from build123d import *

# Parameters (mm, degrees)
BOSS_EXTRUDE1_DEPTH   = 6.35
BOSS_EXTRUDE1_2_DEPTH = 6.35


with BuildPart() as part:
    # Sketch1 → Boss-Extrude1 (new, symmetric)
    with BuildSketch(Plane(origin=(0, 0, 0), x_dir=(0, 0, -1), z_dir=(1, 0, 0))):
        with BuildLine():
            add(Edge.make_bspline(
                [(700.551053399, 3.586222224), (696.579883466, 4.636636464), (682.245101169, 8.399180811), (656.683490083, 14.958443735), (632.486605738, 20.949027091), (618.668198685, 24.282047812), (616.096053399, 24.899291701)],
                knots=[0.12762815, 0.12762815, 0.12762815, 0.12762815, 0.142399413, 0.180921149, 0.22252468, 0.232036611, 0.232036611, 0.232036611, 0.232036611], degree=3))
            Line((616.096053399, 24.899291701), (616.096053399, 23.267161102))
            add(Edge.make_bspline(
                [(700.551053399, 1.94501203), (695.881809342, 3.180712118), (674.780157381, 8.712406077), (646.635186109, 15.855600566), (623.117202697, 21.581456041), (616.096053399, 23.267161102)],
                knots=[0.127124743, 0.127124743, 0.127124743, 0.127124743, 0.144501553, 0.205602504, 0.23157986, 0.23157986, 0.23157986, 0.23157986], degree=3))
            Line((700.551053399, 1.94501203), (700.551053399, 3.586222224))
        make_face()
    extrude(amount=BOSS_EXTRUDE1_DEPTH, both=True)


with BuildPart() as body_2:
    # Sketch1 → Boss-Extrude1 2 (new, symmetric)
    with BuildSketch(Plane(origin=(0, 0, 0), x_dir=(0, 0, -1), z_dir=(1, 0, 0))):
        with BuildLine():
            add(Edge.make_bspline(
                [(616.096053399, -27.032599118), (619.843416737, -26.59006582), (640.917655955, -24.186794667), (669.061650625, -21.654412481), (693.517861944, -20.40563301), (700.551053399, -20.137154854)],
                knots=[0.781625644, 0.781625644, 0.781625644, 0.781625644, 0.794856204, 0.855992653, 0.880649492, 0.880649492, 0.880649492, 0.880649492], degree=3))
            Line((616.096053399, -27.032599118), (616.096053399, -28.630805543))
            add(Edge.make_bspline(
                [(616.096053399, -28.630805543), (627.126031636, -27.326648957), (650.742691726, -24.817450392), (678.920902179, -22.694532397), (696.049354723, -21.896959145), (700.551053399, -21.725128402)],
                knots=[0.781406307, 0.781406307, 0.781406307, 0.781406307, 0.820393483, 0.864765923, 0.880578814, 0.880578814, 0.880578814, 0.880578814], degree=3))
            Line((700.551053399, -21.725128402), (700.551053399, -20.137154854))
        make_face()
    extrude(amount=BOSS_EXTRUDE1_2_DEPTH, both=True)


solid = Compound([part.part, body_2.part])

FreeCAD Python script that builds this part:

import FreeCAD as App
import Part
import Sketcher
Q = App.Units.Quantity

doc = App.newDocument("Part")
body = doc.addObject("PartDesign::Body", "Body")

# Sketch on YZ plane
sketch1 = body.newObject("Sketcher::SketchObject", "Sketch")
sketch1.AttachmentSupport = (doc.getObject("YZ_Plane"), [""])
sketch1.MapMode = "FlatFace"
sketch1.addGeometry([
    Part.BSplineCurve([App.Vector(3.586222, -700.551053, 0), App.Vector(4.636636, -696.579883, 0), App.Vector(8.399181, -682.245101, 0), App.Vector(14.958444, -656.68349, 0), App.Vector(20.949027, -632.486606, 0), App.Vector(24.282048, -618.668199, 0), App.Vector(24.899292, -616.096053, 0)], [4, 1, 1, 1, 4], [0.12762815, 0.142399413, 0.180921149, 0.22252468, 0.232036611], False, 3, [1, 1, 1, 1, 1, 1, 1], False),
    Part.LineSegment(App.Vector(24.899292, -616.096053, 0), App.Vector(23.267161, -616.096053, 0)),
    Part.BSplineCurve([App.Vector(1.945012, -700.551053, 0), App.Vector(3.180712, -695.881809, 0), App.Vector(8.712406, -674.780157, 0), App.Vector(15.855601, -646.635186, 0), App.Vector(21.581456, -623.117203, 0), App.Vector(23.267161, -616.096053, 0)], [4, 1, 1, 4], [0.127124743, 0.144501553, 0.205602504, 0.23157986], False, 3, [1, 1, 1, 1, 1, 1], False),
    Part.LineSegment(App.Vector(1.945012, -700.551053, 0), App.Vector(3.586222, -700.551053, 0)),
], False)
sketch1.addConstraint([
    Sketcher.Constraint("Block", 0),
    Sketcher.Constraint("Block", 2),
    Sketcher.Constraint("Coincident", 0, 2, 1, 1),
    Sketcher.Constraint("Coincident", 1, 2, 2, 2),
    Sketcher.Constraint("Coincident", 2, 1, 3, 1),
    Sketcher.Constraint("Coincident", 3, 2, 0, 1),
])
pad1 = body.newObject("PartDesign::Pad", "Pad")
pad1.Profile = sketch1
pad1.Length = Q("0.5 in")
pad1.Midplane = True
body2 = doc.addObject("PartDesign::Body", "Body001")

# Sketch on YZ plane
sketch2 = body2.newObject("Sketcher::SketchObject", "Sketch001")
sketch2.AttachmentSupport = (doc.getObject("YZ_Plane001"), [""])
sketch2.MapMode = "FlatFace"
sketch2.addGeometry([
    Part.BSplineCurve([App.Vector(-27.032599, -616.096053, 0), App.Vector(-26.590066, -619.843417, 0), App.Vector(-24.186795, -640.917656, 0), App.Vector(-21.654412, -669.061651, 0), App.Vector(-20.405633, -693.517862, 0), App.Vector(-20.137155, -700.551053, 0)], [4, 1, 1, 4], [0.781625644, 0.794856204, 0.855992653, 0.880649492], False, 3, [1, 1, 1, 1, 1, 1], False),
    Part.LineSegment(App.Vector(-27.032599, -616.096053, 0), App.Vector(-28.630806, -616.096053, 0)),
    Part.BSplineCurve([App.Vector(-28.630806, -616.096053, 0), App.Vector(-27.326649, -627.126032, 0), App.Vector(-24.81745, -650.742692, 0), App.Vector(-22.694532, -678.920902, 0), App.Vector(-21.896959, -696.049355, 0), App.Vector(-21.725128, -700.551053, 0)], [4, 1, 1, 4], [0.781406307, 0.820393483, 0.864765923, 0.880578814], False, 3, [1, 1, 1, 1, 1, 1], False),
    Part.LineSegment(App.Vector(-21.725128, -700.551053, 0), App.Vector(-20.137155, -700.551053, 0)),
], False)
sketch2.addConstraint([
    Sketcher.Constraint("Block", 0),
    Sketcher.Constraint("Block", 2),
    Sketcher.Constraint("Coincident", 0, 1, 1, 1),
    Sketcher.Constraint("Coincident", 1, 2, 2, 1),
    Sketcher.Constraint("Coincident", 2, 2, 3, 1),
    Sketcher.Constraint("Coincident", 3, 2, 0, 2),
])
pad2 = body2.newObject("PartDesign::Pad", "Pad001")
pad2.Profile = sketch2
pad2.Length = Q("0.5 in")
pad2.Midplane = True

doc.recompute()
